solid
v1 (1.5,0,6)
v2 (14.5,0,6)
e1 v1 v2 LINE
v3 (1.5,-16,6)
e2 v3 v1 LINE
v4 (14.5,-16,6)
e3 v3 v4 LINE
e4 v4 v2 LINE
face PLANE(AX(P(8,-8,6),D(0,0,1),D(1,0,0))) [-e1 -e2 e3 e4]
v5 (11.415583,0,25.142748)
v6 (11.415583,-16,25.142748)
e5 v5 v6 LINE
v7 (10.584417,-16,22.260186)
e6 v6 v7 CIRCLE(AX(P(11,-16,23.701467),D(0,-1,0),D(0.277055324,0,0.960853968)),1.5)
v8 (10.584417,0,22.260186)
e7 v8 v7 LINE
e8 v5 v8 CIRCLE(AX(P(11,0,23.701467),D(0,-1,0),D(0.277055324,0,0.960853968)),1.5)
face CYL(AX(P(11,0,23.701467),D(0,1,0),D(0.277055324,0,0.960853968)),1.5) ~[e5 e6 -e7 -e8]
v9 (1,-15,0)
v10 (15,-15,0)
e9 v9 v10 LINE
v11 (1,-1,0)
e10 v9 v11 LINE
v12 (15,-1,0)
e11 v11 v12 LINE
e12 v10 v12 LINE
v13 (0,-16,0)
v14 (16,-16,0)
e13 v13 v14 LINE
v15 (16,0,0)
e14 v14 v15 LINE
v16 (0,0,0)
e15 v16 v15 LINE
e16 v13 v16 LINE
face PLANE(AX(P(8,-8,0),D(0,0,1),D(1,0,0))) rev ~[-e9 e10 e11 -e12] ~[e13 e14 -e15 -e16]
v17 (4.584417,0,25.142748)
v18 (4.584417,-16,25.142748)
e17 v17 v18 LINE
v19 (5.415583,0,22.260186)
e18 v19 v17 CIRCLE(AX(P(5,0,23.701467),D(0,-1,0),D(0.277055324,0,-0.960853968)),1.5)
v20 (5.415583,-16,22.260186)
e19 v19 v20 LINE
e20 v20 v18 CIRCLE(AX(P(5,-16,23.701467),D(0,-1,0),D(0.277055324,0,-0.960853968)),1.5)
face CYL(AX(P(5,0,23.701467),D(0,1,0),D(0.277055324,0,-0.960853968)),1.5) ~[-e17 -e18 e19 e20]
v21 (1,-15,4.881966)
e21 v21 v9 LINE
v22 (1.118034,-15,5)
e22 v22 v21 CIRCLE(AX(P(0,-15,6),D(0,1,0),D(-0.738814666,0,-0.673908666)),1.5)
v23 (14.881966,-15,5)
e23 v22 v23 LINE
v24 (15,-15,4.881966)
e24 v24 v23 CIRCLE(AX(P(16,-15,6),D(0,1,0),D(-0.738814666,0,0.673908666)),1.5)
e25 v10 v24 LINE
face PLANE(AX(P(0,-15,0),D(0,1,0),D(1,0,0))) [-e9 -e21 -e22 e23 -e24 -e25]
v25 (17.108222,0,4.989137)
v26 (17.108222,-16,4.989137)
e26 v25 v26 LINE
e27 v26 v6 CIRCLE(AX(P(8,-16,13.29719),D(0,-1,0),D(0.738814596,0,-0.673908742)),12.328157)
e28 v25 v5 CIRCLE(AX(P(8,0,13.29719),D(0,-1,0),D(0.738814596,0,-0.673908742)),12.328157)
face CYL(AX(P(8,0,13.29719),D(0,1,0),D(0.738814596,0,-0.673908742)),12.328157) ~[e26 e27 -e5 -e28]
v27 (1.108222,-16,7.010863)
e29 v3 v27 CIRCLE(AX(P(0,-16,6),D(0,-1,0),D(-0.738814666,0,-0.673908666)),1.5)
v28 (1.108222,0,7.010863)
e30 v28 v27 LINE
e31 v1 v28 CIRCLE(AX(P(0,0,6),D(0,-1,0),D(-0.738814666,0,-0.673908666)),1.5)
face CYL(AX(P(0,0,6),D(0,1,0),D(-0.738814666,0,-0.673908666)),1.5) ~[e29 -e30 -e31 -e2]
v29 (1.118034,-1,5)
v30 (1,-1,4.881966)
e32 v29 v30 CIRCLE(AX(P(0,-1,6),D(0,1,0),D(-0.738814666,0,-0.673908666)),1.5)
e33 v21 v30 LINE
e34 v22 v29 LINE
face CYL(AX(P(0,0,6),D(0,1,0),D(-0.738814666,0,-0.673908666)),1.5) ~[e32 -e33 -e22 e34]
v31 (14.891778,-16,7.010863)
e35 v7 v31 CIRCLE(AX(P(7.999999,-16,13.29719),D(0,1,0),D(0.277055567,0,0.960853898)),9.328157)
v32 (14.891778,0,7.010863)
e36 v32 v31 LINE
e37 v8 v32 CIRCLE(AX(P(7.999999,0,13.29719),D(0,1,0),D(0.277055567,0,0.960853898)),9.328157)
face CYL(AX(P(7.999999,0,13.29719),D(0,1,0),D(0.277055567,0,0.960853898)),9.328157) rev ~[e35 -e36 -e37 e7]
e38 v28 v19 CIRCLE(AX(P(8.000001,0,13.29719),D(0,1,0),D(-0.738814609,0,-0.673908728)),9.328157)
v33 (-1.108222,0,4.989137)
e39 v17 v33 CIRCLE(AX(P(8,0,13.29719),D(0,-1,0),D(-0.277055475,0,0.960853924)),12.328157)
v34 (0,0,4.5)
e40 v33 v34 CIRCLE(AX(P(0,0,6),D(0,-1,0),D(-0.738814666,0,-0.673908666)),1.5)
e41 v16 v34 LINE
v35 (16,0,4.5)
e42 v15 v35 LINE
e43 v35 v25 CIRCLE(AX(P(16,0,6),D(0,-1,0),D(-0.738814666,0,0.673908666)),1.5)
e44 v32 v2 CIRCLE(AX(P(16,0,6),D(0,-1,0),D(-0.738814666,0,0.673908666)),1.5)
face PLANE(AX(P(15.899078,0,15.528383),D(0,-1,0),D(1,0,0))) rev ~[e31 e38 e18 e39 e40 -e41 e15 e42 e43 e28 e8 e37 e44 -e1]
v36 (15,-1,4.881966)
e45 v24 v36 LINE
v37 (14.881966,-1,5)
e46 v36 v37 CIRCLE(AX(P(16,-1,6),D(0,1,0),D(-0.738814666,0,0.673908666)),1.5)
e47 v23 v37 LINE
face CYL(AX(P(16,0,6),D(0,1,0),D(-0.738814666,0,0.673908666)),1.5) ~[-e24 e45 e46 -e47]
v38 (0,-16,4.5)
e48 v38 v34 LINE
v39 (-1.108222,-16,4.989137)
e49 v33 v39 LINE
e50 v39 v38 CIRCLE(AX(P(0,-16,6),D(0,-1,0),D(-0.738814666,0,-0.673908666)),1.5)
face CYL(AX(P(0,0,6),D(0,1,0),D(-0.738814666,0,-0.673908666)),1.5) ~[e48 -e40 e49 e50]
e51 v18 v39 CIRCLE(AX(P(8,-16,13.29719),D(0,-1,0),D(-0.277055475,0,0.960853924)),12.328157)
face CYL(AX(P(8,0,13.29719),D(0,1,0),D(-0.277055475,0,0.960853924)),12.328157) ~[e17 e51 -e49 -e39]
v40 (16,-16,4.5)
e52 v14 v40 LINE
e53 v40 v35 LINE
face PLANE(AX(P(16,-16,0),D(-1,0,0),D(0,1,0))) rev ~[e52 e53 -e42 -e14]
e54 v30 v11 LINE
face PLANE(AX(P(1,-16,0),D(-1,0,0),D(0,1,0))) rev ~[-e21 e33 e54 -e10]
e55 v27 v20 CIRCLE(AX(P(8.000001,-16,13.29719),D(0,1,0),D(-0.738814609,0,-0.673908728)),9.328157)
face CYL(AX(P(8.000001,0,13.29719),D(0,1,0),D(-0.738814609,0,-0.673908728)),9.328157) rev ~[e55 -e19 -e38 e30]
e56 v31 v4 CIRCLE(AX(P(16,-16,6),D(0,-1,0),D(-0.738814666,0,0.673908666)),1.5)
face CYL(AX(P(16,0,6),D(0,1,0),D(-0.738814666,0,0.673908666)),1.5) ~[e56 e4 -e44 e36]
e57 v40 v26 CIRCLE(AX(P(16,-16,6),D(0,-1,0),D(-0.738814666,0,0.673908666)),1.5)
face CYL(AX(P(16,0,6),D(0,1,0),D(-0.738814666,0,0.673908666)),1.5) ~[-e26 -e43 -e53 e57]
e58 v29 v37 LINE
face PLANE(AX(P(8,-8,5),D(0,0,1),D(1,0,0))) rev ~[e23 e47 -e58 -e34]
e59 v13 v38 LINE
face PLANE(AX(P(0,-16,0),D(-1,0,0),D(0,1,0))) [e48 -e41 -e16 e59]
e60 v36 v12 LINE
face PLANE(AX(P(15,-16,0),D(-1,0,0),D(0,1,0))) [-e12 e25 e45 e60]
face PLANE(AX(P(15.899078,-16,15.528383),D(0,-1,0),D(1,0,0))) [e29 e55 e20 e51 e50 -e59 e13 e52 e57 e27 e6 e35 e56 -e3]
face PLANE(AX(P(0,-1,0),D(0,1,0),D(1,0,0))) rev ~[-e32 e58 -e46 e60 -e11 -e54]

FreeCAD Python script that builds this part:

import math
import FreeCAD as App
import Part
import Sketcher
from FreeCAD import Vector


def faces_at(feature, points):
    """Names of the faces that lie closest to the given points."""
    faces = feature.Shape.Faces
    near = lambda p: min(range(len(faces)), key=lambda i: faces[i].distToShape(Part.Vertex(*p))[0])
    return sorted({f"Face{near(p) + 1}" for p in points})


def add_polygon(sketch, points):
    """Adds a closed chain of lines whose ends are joined by coincident constraints."""
    first, n = sketch.GeometryCount, len(points)
    for a, b in zip(points, points[1:] + points[:1]):
        sketch.addGeometry(Part.LineSegment(App.Vector(*a, 0), App.Vector(*b, 0)), False)
    for i in range(n):
        sketch.addConstraint(Sketcher.Constraint("Coincident", first + i, 2, first + (i + 1) % n, 1))

doc = App.newDocument("Part")
body = doc.addObject("PartDesign::Body", "Body")

# Sketch on XY plane
sketch1 = body.newObject("Sketcher::SketchObject", "Sketch")
sketch1.AttachmentSupport = (doc.getObject("XY_Plane"), [""])
sketch1.MapMode = "FlatFace"
add_polygon(sketch1, [(0, 0), (0, -16), (16, -16), (16, 0)])  # lines 0-3
sketch1.addConstraint([
    Sketcher.Constraint("Vertical", 0),
    Sketcher.Constraint("Horizontal", 1),
    Sketcher.Constraint("Vertical", 2),
    Sketcher.Constraint("Horizontal", 3),
    Sketcher.Constraint("Coincident", 3, 2, -1, 1),
    Sketcher.Constraint("Equal", 3, 0),
    Sketcher.Constraint("DistanceX", 1, 1, 1, 2, 16.0),
])
pad1 = body.newObject("PartDesign::Pad", "Pad")
pad1.Profile = sketch1
pad1.Length = 6
doc.recompute()

thickness = body.newObject("PartDesign::Thickness", "Thickness")
thickness.Base = (pad1, faces_at(pad1, [(8, -8, 0)]))
thickness.Value = 1
thickness.Reversed = True
thickness.Join = "Arc"

# Sketch on XZ plane
sketch2 = body.newObject("Sketcher::SketchObject", "Sketch001")
sketch2.AttachmentSupport = (doc.getObject("XZ_Plane"), [""])
sketch2.MapMode = "FlatFace"
sketch2.addGeometry([
    Part.ArcOfCircle(Part.Circle(Vector(16, 6, 0), Vector(0, 0, 1), 1.5), math.radians(138), math.radians(318)),  # 0
    Part.ArcOfCircle(Part.Circle(Vector(8, 13.3, 0), Vector(0, 0, 1), 12.3), math.radians(-42), math.radians(74)),  # 1
    Part.ArcOfCircle(Part.Circle(Vector(11, 23.7, 0), Vector(0, 0, 1), 1.5), math.radians(74), math.radians(254)),  # 2
    Part.ArcOfCircle(Part.Circle(Vector(8, 13.3, 0), Vector(0, 0, 1), 9.3), math.radians(-42), math.radians(74)),  # 3
    Part.ArcOfCircle(Part.Circle(Vector(8, 13.3, 0), Vector(0, 0, 1), 12.3), math.radians(106), math.radians(222)),  # 4
    Part.ArcOfCircle(Part.Circle(Vector(0, 6, 0), Vector(0, 0, 1), 1.5), math.radians(-138), math.radians(42)),  # 5
    Part.ArcOfCircle(Part.Circle(Vector(8, 13.3, 0), Vector(0, 0, 1), 9.3), math.radians(106), math.radians(222)),  # 6
    Part.ArcOfCircle(Part.Circle(Vector(5, 23.7, 0), Vector(0, 0, 1), 1.5), math.radians(-74), math.radians(106)),  # 7
], False)
sketch2.addConstraint([
    Sketcher.Constraint("Tangent", 0, 2, 1, 1),
    Sketcher.Constraint("Tangent", 1, 2, 2, 1),
    Sketcher.Constraint("Tangent", 2, 2, 3, 2),
    Sketcher.Constraint("Tangent", 3, 1, 0, 1),
    Sketcher.Constraint("Tangent", 4, 2, 5, 1),
    Sketcher.Constraint("Tangent", 5, 2, 6, 2),
    Sketcher.Constraint("Tangent", 6, 1, 7, 1),
    Sketcher.Constraint("Tangent", 7, 2, 4, 1),
    Sketcher.Constraint("Coincident", 3, 3, 1, 3),
    Sketcher.Constraint("Coincident", 4, 3, 1, 3),
    Sketcher.Constraint("Coincident", 6, 3, 1, 3),
    Sketcher.Constraint("Equal", 1, 4),
    Sketcher.Constraint("Equal", 2, 5),
    Sketcher.Constraint("PointOnObject", 5, 3, -2),
    Sketcher.Constraint("Horizontal", 0, 3, 5, 3),
    Sketcher.Constraint("Horizontal", 2, 3, 7, 3),
    Sketcher.Constraint("Radius", 0, 1.5),
    Sketcher.Constraint("DistanceX", -1, 1, 0, 3, 16.0),
    Sketcher.Constraint("DistanceY", -1, 1, 0, 3, 6.0),
    Sketcher.Constraint("DistanceX", -1, 1, 2, 3, 11.0),
    Sketcher.Constraint("Radius", 1, 12.328157),
])
pad2 = body.newObject("PartDesign::Pad", "Pad001")
pad2.Profile = sketch2
pad2.Length = 16

doc.recompute()
